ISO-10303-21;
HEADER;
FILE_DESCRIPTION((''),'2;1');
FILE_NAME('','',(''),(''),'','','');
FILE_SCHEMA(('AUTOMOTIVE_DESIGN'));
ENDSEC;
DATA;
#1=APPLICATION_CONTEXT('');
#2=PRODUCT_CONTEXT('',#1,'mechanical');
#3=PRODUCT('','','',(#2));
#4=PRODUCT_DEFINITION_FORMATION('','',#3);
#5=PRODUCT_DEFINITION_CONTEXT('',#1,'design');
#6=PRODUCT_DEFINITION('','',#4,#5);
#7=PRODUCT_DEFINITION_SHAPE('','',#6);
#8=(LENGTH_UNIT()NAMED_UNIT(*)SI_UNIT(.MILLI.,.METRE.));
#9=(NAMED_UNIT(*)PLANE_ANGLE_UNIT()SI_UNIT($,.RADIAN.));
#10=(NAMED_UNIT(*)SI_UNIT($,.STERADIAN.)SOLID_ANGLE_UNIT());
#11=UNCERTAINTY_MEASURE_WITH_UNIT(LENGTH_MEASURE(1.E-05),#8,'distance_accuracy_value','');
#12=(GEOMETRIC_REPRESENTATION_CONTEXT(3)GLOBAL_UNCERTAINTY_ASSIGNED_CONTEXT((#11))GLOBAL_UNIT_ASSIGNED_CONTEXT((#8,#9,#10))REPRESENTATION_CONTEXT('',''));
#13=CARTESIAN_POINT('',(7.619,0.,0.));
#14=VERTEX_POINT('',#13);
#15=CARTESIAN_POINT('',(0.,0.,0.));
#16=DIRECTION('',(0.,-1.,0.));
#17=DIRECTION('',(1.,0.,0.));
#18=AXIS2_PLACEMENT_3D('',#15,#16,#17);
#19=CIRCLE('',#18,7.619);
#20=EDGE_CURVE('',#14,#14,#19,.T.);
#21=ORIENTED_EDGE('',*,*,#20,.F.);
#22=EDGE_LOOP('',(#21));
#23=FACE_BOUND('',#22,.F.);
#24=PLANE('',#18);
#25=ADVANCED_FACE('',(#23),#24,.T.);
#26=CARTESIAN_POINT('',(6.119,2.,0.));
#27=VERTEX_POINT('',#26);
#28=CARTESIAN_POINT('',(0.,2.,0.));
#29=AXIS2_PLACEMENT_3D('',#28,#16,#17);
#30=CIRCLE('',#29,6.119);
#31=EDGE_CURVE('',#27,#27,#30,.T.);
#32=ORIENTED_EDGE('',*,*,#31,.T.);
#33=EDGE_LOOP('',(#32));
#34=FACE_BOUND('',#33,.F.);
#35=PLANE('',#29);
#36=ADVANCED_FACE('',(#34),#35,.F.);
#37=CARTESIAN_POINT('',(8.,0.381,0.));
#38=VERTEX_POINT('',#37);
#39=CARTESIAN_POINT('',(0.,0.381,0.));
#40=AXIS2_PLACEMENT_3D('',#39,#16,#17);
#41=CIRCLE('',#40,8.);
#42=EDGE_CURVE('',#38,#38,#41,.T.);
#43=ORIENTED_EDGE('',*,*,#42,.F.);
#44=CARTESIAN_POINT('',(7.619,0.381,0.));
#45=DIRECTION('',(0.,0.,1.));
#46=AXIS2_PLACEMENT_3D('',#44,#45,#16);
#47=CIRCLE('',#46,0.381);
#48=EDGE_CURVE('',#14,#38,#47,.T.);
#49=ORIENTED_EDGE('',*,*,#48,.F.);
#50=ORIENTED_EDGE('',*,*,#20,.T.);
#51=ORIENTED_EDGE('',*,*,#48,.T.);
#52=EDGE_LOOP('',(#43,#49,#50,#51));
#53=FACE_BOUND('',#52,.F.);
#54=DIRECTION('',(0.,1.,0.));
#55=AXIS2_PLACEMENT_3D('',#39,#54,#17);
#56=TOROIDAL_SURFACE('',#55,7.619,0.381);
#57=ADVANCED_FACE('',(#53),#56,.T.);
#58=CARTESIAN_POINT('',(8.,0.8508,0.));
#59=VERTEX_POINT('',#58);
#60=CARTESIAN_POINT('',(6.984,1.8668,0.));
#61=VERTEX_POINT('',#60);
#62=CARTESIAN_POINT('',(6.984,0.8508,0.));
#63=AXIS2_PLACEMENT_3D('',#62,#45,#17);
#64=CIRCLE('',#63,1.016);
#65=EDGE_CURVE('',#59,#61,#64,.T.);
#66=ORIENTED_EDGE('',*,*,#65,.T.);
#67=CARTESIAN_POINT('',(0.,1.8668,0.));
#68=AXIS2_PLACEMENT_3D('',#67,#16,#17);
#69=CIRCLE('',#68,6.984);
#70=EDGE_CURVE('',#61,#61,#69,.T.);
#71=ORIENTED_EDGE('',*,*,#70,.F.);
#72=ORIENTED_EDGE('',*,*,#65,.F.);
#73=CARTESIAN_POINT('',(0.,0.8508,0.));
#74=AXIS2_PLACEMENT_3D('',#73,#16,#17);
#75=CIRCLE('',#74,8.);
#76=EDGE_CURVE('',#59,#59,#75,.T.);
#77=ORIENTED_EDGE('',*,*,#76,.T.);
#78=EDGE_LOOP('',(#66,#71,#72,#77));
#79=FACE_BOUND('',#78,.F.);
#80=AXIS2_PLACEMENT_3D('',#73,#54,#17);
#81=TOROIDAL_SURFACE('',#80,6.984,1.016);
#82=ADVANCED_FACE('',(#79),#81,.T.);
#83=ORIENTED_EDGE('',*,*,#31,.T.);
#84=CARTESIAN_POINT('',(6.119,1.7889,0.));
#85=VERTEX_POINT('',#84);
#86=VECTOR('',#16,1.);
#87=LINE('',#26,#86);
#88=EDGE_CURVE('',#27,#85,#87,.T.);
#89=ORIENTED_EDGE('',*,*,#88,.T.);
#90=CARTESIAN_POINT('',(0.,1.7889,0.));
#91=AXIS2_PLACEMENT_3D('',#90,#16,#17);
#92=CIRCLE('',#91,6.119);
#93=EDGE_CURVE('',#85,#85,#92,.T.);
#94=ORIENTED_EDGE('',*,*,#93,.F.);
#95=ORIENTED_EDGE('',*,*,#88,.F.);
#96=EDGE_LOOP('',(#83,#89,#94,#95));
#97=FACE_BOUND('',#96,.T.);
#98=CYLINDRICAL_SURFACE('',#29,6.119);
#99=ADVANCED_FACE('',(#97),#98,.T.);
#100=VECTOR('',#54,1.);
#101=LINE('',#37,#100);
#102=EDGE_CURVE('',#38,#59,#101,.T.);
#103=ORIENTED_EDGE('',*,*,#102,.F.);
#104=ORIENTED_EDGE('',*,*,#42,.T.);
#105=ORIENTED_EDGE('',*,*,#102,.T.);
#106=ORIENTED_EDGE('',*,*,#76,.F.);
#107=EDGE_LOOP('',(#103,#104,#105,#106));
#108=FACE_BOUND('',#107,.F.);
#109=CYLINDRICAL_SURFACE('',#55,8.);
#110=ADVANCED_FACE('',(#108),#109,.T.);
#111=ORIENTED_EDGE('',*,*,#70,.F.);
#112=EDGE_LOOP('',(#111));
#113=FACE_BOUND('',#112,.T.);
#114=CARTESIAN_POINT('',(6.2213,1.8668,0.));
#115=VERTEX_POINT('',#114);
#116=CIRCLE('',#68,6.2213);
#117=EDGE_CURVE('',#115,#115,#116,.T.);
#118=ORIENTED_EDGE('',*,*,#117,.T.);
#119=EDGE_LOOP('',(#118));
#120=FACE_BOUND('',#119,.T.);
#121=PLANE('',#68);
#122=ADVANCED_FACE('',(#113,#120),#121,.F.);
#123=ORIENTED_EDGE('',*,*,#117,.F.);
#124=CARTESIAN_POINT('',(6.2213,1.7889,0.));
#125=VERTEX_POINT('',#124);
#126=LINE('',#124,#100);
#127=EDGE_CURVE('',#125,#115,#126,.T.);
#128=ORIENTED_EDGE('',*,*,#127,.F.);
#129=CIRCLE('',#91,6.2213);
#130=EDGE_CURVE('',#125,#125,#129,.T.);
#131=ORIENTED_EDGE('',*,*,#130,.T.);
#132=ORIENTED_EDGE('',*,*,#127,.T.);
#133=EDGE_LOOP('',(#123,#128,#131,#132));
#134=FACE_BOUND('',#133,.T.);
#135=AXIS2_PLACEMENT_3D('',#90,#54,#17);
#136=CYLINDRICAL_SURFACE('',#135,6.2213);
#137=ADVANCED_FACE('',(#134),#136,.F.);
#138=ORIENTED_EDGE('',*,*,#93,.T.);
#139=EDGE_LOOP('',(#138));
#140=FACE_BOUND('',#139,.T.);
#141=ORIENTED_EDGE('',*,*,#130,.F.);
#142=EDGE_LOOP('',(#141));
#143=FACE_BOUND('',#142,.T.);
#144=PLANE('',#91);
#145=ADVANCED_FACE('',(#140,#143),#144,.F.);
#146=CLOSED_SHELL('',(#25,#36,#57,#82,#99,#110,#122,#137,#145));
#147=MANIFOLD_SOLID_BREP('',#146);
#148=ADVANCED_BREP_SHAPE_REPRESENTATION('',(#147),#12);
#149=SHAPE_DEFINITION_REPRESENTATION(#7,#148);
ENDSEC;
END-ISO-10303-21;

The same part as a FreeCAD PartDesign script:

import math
import FreeCAD as App
import Part
import Sketcher
Q = App.Units.Quantity

doc = App.newDocument("Part")
body = doc.addObject("PartDesign::Body", "Body")

sketch1 = doc.addObject("Sketcher::SketchObject", "Sketch")
body.addObject(sketch1)
sketch1.AttachmentSupport = (doc.XY_Plane, [""])
sketch1.MapMode = "FlatFace"
sketch1.addGeometry(Part.LineSegment(App.Vector(0, 2, 0), App.Vector(0, 0, 0)), False)
sketch1.addGeometry(Part.LineSegment(App.Vector(0, 0, 0), App.Vector(7.62, 0, 0)), False)
sketch1.addGeometry(Part.ArcOfCircle(Part.Circle(App.Vector(7.62, 0.38, 0), App.Vector(0, 0, 1), 0.38), math.radians(-90), math.radians(0)), False)
sketch1.addGeometry(Part.LineSegment(App.Vector(8, 0.38, 0), App.Vector(8, 0.85, 0)), False)
sketch1.addGeometry(Part.ArcOfCircle(Part.Circle(App.Vector(6.98, 0.85, 0), App.Vector(0, 0, 1), 1.02), math.radians(0), math.radians(90)), False)
sketch1.addGeometry(Part.LineSegment(App.Vector(6.98, 1.87, 0), App.Vector(6.22, 1.87, 0)), False)
sketch1.addGeometry(Part.LineSegment(App.Vector(6.22, 1.87, 0), App.Vector(6.22, 1.79, 0)), False)
sketch1.addGeometry(Part.LineSegment(App.Vector(6.22, 1.79, 0), App.Vector(6.12, 1.79, 0)), False)
sketch1.addGeometry(Part.LineSegment(App.Vector(6.12, 1.79, 0), App.Vector(6.12, 2, 0)), False)
sketch1.addGeometry(Part.LineSegment(App.Vector(6.12, 2, 0), App.Vector(0, 2, 0)), False)
sketch1.addConstraint(Sketcher.Constraint("Coincident", 0, 2, 1, 1))
sketch1.addConstraint(Sketcher.Constraint("Tangent", 1, 2, 2, 1))
sketch1.addConstraint(Sketcher.Constraint("Tangent", 2, 2, 3, 1))
sketch1.addConstraint(Sketcher.Constraint("Tangent", 3, 2, 4, 1))
sketch1.addConstraint(Sketcher.Constraint("Tangent", 4, 2, 5, 1))
sketch1.addConstraint(Sketcher.Constraint("Coincident", 5, 2, 6, 1))
sketch1.addConstraint(Sketcher.Constraint("Coincident", 6, 2, 7, 1))
sketch1.addConstraint(Sketcher.Constraint("Coincident", 7, 2, 8, 1))
sketch1.addConstraint(Sketcher.Constraint("Coincident", 8, 2, 9, 1))
sketch1.addConstraint(Sketcher.Constraint("Coincident", 9, 2, 0, 1))
sketch1.addConstraint(Sketcher.Constraint("Vertical", 0))
sketch1.addConstraint(Sketcher.Constraint("Horizontal", 1))
sketch1.addConstraint(Sketcher.Constraint("Vertical", 3))
sketch1.addConstraint(Sketcher.Constraint("Horizontal", 5))
sketch1.addConstraint(Sketcher.Constraint("Vertical", 6))
sketch1.addConstraint(Sketcher.Constraint("Horizontal", 7))
sketch1.addConstraint(Sketcher.Constraint("Vertical", 8))
sketch1.addConstraint(Sketcher.Constraint("Horizontal", 9))
sketch1.addConstraint(Sketcher.Constraint("Coincident", 0, 2, -1, 1))
sketch1.addConstraint(Sketcher.Constraint("Radius", 4, Q("0.04 in")))
sketch1.addConstraint(Sketcher.Constraint("Radius", 2, Q("0.015 in")))
sketch1.addConstraint(Sketcher.Constraint("DistanceY", 0, 2, 0, 1, Q("2 mm")))
sketch1.addConstraint(Sketcher.Constraint("DistanceX", 9, 2, 9, 1, Q("0.2409 in")))
sketch1.addConstraint(Sketcher.Constraint("DistanceY", 3, 1, 3, 2, Q("0.0185 in")))
sketch1.addConstraint(Sketcher.Constraint("DistanceY", 8, 1, 8, 2, Q("0.0083 in")))
sketch1.addConstraint(Sketcher.Constraint("DistanceX", 1, 1, 1, 2, Q("7.619 mm")))
sketch1.addConstraint(Sketcher.Constraint("DistanceX", 5, 2, 5, 1, Q("0.7627 mm")))
revolution = doc.addObject("PartDesign::Revolution", "Revolution")
body.addObject(revolution)
revolution.Profile = sketch1
revolution.ReferenceAxis = (sketch1, ["V_Axis"])
revolution.Angle = 360

doc.recompute()
